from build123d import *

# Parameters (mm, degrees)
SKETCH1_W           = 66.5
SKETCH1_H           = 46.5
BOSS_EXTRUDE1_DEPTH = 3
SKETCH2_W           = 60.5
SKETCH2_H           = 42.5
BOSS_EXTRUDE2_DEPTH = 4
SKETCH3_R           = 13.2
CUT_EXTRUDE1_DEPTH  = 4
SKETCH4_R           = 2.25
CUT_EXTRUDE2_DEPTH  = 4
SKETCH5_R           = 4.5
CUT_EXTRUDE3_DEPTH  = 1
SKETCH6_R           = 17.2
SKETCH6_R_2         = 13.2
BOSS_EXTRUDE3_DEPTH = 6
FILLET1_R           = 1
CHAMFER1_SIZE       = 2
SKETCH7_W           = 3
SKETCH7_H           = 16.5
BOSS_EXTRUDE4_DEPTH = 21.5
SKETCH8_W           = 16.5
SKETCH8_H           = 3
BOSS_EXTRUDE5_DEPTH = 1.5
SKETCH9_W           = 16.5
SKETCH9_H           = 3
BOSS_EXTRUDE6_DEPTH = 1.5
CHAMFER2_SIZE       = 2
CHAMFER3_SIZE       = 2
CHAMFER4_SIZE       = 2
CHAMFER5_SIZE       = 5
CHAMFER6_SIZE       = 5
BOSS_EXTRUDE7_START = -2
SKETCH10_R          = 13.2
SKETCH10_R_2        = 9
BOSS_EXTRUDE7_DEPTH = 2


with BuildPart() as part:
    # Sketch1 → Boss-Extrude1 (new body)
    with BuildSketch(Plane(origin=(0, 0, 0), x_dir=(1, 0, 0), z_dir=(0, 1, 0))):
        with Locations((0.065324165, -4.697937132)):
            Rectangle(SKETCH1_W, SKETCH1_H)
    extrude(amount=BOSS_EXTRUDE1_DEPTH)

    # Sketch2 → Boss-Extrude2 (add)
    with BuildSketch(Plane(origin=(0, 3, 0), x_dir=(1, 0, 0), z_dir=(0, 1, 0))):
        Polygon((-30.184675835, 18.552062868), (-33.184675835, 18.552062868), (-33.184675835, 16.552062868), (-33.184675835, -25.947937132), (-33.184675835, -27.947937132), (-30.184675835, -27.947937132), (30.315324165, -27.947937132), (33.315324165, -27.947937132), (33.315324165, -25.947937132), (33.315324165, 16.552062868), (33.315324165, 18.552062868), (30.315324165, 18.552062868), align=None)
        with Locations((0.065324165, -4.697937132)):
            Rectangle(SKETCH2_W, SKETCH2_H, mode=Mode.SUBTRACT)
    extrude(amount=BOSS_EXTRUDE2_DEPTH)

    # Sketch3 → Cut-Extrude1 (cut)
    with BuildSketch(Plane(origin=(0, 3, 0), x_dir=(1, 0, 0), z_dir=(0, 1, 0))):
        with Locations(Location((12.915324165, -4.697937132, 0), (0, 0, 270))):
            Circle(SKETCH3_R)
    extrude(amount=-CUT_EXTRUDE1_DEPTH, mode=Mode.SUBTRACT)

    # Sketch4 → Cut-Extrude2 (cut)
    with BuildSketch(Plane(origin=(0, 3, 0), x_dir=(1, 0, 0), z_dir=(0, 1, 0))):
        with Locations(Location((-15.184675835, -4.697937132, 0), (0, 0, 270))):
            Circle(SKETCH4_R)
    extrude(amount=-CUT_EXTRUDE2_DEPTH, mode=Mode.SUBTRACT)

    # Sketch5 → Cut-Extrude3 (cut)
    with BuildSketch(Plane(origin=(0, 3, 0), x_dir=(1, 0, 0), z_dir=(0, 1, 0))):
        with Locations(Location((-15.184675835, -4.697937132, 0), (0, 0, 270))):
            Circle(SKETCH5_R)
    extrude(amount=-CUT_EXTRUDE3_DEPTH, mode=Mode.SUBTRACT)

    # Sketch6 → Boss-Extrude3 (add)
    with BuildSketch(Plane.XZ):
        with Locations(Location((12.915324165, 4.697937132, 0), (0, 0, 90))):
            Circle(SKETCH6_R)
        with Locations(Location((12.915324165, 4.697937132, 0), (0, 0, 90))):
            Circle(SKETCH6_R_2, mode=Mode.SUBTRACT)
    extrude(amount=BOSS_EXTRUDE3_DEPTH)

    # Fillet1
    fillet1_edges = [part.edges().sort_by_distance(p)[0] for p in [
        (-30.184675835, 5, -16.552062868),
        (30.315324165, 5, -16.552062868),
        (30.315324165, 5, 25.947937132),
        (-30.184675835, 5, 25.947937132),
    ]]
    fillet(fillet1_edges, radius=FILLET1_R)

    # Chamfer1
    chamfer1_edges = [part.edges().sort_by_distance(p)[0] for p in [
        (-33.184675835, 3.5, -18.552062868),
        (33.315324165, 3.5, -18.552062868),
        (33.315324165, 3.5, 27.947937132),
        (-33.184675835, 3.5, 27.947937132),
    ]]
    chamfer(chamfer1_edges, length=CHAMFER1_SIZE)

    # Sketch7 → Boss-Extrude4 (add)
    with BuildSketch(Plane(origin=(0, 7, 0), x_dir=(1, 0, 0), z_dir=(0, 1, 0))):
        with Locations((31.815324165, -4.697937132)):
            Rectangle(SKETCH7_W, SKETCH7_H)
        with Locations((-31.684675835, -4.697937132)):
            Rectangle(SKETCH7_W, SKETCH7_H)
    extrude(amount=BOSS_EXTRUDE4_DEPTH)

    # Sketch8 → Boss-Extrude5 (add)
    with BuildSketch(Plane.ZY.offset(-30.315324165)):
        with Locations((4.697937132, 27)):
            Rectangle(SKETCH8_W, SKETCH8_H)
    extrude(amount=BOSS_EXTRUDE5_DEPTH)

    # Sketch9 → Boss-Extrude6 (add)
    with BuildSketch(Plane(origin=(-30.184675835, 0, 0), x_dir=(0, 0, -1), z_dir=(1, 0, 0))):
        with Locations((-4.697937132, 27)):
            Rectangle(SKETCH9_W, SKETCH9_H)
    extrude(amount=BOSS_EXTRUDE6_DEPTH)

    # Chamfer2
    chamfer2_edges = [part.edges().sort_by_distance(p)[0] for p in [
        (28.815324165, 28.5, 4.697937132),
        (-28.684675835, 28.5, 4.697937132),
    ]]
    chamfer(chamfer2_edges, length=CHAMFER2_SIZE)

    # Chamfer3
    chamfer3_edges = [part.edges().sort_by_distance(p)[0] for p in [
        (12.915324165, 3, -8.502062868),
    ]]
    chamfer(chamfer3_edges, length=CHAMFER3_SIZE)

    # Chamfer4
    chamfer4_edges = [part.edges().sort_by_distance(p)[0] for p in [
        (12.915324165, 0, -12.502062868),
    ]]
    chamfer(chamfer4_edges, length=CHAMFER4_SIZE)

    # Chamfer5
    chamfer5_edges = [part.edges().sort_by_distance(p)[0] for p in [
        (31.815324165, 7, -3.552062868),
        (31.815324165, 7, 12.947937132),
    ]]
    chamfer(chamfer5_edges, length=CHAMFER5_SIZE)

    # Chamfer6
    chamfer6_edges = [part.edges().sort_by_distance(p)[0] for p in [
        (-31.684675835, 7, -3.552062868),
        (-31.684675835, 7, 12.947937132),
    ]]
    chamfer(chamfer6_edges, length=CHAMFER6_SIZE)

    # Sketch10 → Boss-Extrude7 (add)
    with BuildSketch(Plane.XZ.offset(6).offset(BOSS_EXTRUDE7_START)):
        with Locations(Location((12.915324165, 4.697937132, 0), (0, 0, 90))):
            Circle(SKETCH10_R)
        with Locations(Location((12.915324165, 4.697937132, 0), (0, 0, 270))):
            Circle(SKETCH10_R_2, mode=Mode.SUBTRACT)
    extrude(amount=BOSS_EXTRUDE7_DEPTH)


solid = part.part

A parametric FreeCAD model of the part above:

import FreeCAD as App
import Part
import Sketcher

V = App.Vector
Q = App.Units.Quantity


def edges_at(feature, points):
    """Names of the edges that pass closest to the given points."""
    edges = feature.Shape.Edges
    near = lambda p: min(range(len(edges)), key=lambda i: edges[i].distToShape(Part.Vertex(*p))[0])
    return sorted({f"Edge{near(p) + 1}" for p in points})


def add_polygon(sketch, points):
    """Adds a closed chain of lines whose ends are joined by coincident constraints."""
    first, n = sketch.GeometryCount, len(points)
    for a, b in zip(points, points[1:] + points[:1]):
        sketch.addGeometry(Part.LineSegment(App.Vector(*a, 0), App.Vector(*b, 0)), False)
    for i in range(n):
        sketch.addConstraint(Sketcher.Constraint("Coincident", first + i, 2, first + (i + 1) % n, 1))

doc = App.newDocument("Part")
body = doc.addObject("PartDesign::Body", "Body")

# Sketch on XZ plane
sketch1 = doc.addObject("Sketcher::SketchObject", "Sketch")
body.addObject(sketch1)
sketch1.AttachmentSupport = (doc.XZ_Plane, [""])
sketch1.MapMode = "FlatFace"
add_polygon(sketch1, [(-33, -19), (-33, 28), (33, 28), (33, -19)])  # lines 0-3
sketch1.addConstraint([
    Sketcher.Constraint("Vertical", 0),
    Sketcher.Constraint("Horizontal", 1),
    Sketcher.Constraint("Vertical", 2),
    Sketcher.Constraint("Horizontal", 3),
    Sketcher.Constraint("DistanceX", 1, 1, 1, 2, Q("66.5 mm")),
    Sketcher.Constraint("DistanceY", 0, 1, 0, 2, Q("46.5 mm")),
    Sketcher.Constraint("DistanceX", 0, 2, -1, 1, Q("33.184676 mm")),
    Sketcher.Constraint("DistanceY", -1, 1, 0, 2, Q("27.947937 mm")),
])
pad1 = doc.addObject("PartDesign::Pad", "Pad")
body.addObject(pad1)
pad1.Profile = sketch1
pad1.Length = 3
pad1.Reversed = True

# Sketch on XZ plane
sketch2 = doc.addObject("Sketcher::SketchObject", "Sketch001")
body.addObject(sketch2)
sketch2.AttachmentSupport = (doc.XZ_Plane, [""])
sketch2.MapMode = "FlatFace"
sketch2.AttachmentOffset = App.Placement(V(0, 0, -3), App.Rotation())
add_polygon(sketch2, [(-33, -19), (-33, 28), (33, 28), (33, -19)])  # lines 0-3
add_polygon(sketch2, [(30, 26), (-30, 26), (-30, -17), (30, -17)])  # lines 4-7
sketch2.addConstraint([
    Sketcher.Constraint("Vertical", 0),
    Sketcher.Constraint("Horizontal", 1),
    Sketcher.Constraint("Vertical", 2),
    Sketcher.Constraint("Horizontal", 3),
    Sketcher.Constraint("Horizontal", 4),
    Sketcher.Constraint("Vertical", 5),
    Sketcher.Constraint("Horizontal", 6),
    Sketcher.Constraint("Vertical", 7),
    Sketcher.Constraint("DistanceX", 1, 1, 1, 2, Q("66.5 mm")),
    Sketcher.Constraint("DistanceX", 4, 2, 4, 1, Q("60.5 mm")),
    Sketcher.Constraint("DistanceY", 0, 1, 0, 2, Q("46.5 mm")),
    Sketcher.Constraint("DistanceY", 5, 2, 5, 1, Q("42.5 mm")),
    Sketcher.Constraint("DistanceX", 0, 2, 4, 2, Q("3 mm")),
    Sketcher.Constraint("DistanceY", 4, 2, 0, 2, Q("2 mm")),
    Sketcher.Constraint("DistanceX", 0, 2, -1, 1, Q("33.184676 mm")),
    Sketcher.Constraint("DistanceY", -1, 1, 0, 2, Q("27.947937 mm")),
])
pad2 = doc.addObject("PartDesign::Pad", "Pad001")
body.addObject(pad2)
pad2.Profile = sketch2
pad2.Length = 4
pad2.Reversed = True

# Sketch on XZ plane
sketch3 = doc.addObject("Sketcher::SketchObject", "Sketch002")
body.addObject(sketch3)
sketch3.AttachmentSupport = (doc.XZ_Plane, [""])
sketch3.MapMode = "FlatFace"
sketch3.AttachmentOffset = App.Placement(V(0, 0, -3), App.Rotation())
sketch3.addGeometry(Part.Circle(V(13, 5, 0), V(0, 0, 1), 13), False)
sketch3.addConstraint([
    Sketcher.Constraint("Diameter", 0, Q("26.4 mm")),
    Sketcher.Constraint("DistanceX", -1, 1, 0, 3, Q("12.915324 mm")),
    Sketcher.Constraint("DistanceY", -1, 1, 0, 3, Q("4.697937 mm")),
])
pocket1 = doc.addObject("PartDesign::Pocket", "Pocket")
body.addObject(pocket1)
pocket1.Profile = sketch3
pocket1.Length = 4
pocket1.Reversed = True

# Sketch on XZ plane
sketch4 = doc.addObject("Sketcher::SketchObject", "Sketch003")
body.addObject(sketch4)
sketch4.AttachmentSupport = (doc.XZ_Plane, [""])
sketch4.MapMode = "FlatFace"
sketch4.AttachmentOffset = App.Placement(V(0, 0, -3), App.Rotation())
sketch4.addGeometry(Part.Circle(V(-15.2, 4.7, 0), V(0, 0, 1), 2.2), False)
sketch4.addConstraint([
    Sketcher.Constraint("Diameter", 0, Q("4.5 mm")),
    Sketcher.Constraint("DistanceX", 0, 3, -1, 1, Q("15.184676 mm")),
    Sketcher.Constraint("DistanceY", -1, 1, 0, 3, Q("4.697937 mm")),
])
pocket2 = doc.addObject("PartDesign::Pocket", "Pocket001")
body.addObject(pocket2)
pocket2.Profile = sketch4
pocket2.Length = 4
pocket2.Reversed = True

# Sketch on XZ plane
sketch5 = doc.addObject("Sketcher::SketchObject", "Sketch004")
body.addObject(sketch5)
sketch5.AttachmentSupport = (doc.XZ_Plane, [""])
sketch5.MapMode = "FlatFace"
sketch5.AttachmentOffset = App.Placement(V(0, 0, -3), App.Rotation())
sketch5.addGeometry(Part.Circle(V(-15.2, 4.7, 0), V(0, 0, 1), 4.5), False)
sketch5.addConstraint([
    Sketcher.Constraint("Diameter", 0, Q("9 mm")),
    Sketcher.Constraint("DistanceX", 0, 3, -1, 1, Q("15.184676 mm")),
    Sketcher.Constraint("DistanceY", -1, 1, 0, 3, Q("4.697937 mm")),
])
pocket3 = doc.addObject("PartDesign::Pocket", "Pocket002")
body.addObject(pocket3)
pocket3.Profile = sketch5
pocket3.Length = 1
pocket3.Reversed = True

# Sketch on XZ plane
sketch6 = doc.addObject("Sketcher::SketchObject", "Sketch005")
body.addObject(sketch6)
sketch6.AttachmentSupport = (doc.XZ_Plane, [""])
sketch6.MapMode = "FlatFace"
sketch6.addGeometry([
    Part.Circle(V(13, 5, 0), V(0, 0, 1), 17),
    Part.Circle(V(13, 5, 0), V(0, 0, 1), 13),
], False)
sketch6.addConstraint([
    Sketcher.Constraint("Coincident", 1, 3, 0, 3),
    Sketcher.Constraint("Diameter", 0, Q("34.4 mm")),
    Sketcher.Constraint("Diameter", 1, Q("26.4 mm")),
    Sketcher.Constraint("DistanceX", -1, 1, 0, 3, Q("12.915324 mm")),
    Sketcher.Constraint("DistanceY", -1, 1, 0, 3, Q("4.697937 mm")),
])
pad3 = doc.addObject("PartDesign::Pad", "Pad002")
body.addObject(pad3)
pad3.Profile = sketch6
pad3.Length = 6
doc.recompute()

fillet = doc.addObject("PartDesign::Fillet", "Fillet")
body.addObject(fillet)
fillet.Base = (pad3, edges_at(pad3, [
    (-30.185, 5, -16.552),
    (30.315, 5, -16.552),
    (30.315, 5, 25.948),
    (-30.185, 5, 25.948),
]))
fillet.Radius = 1
doc.recompute()

chamfer = doc.addObject("PartDesign::Chamfer", "Chamfer")
body.addObject(chamfer)
chamfer.Base = (fillet, edges_at(fillet, [
    (-33.185, 3.5, -18.552),
    (33.315, 3.5, -18.552),
    (33.315, 3.5, 27.948),
    (-33.185, 3.5, 27.948),
]))
chamfer.Size = 2

# Sketch on XZ plane
sketch7 = doc.addObject("Sketcher::SketchObject", "Sketch006")
body.addObject(sketch7)
sketch7.AttachmentSupport = (doc.XZ_Plane, [""])
sketch7.MapMode = "FlatFace"
sketch7.AttachmentOffset = App.Placement(V(0, 0, -7), App.Rotation())
add_polygon(sketch7, [(30.3, -3.6), (30.3, 12.9), (33.3, 12.9), (33.3, -3.6)])  # lines 0-3
add_polygon(sketch7, [(-33.2, -3.6), (-33.2, 12.9), (-30.2, 12.9), (-30.2, -3.6)])  # lines 4-7
sketch7.addConstraint([
    Sketcher.Constraint("Vertical", 0),
    Sketcher.Constraint("Horizontal", 1),
    Sketcher.Constraint("Vertical", 2),
    Sketcher.Constraint("Horizontal", 3),
    Sketcher.Constraint("Vertical", 4),
    Sketcher.Constraint("Horizontal", 5),
    Sketcher.Constraint("Vertical", 6),
    Sketcher.Constraint("Horizontal", 7),
    Sketcher.Constraint("Horizontal", 1, 2, 4, 2),
    Sketcher.Constraint("Horizontal", 3, 2, 6, 2),
    Sketcher.Constraint("Equal", 3, 5),
    Sketcher.Constraint("DistanceX", 1, 1, 1, 2, Q("3 mm")),
    Sketcher.Constraint("DistanceY", 0, 1, 0, 2, Q("16.5 mm")),
    Sketcher.Constraint("DistanceX", 4, 2, 0, 2, Q("63.5 mm")),
    Sketcher.Constraint("DistanceX", -1, 1, 0, 2, Q("30.315324 mm")),
    Sketcher.Constraint("DistanceY", -1, 1, 0, 2, Q("12.947937 mm")),
])
pad4 = doc.addObject("PartDesign::Pad", "Pad003")
body.addObject(pad4)
pad4.Profile = sketch7
pad4.Length = 21.5
pad4.Reversed = True

# Sketch on YZ plane
sketch8 = doc.addObject("Sketcher::SketchObject", "Sketch007")
body.addObject(sketch8)
sketch8.AttachmentSupport = (doc.YZ_Plane, [""])
sketch8.MapMode = "FlatFace"
sketch8.AttachmentOffset = App.Placement(V(0, 0, 30.315324), App.Rotation())
add_polygon(sketch8, [(28.5, -3.6), (25.5, -3.6), (25.5, 12.9), (28.5, 12.9)])  # lines 0-3
sketch8.addConstraint([
    Sketcher.Constraint("Horizontal", 0),
    Sketcher.Constraint("Vertical", 1),
    Sketcher.Constraint("Horizontal", 2),
    Sketcher.Constraint("Vertical", 3),
    Sketcher.Constraint("DistanceX", 0, 2, 0, 1, Q("3 mm")),
    Sketcher.Constraint("DistanceY", 1, 1, 1, 2, Q("16.5 mm")),
    Sketcher.Constraint("DistanceX", -1, 1, 0, 2, Q("25.5 mm")),
    Sketcher.Constraint("DistanceY", 0, 2, -1, 1, Q("3.552063 mm")),
])
pad5 = doc.addObject("PartDesign::Pad", "Pad004")
body.addObject(pad5)
pad5.Profile = sketch8
pad5.Length = 1.5
pad5.Reversed = True

# Sketch on YZ plane
sketch9 = doc.addObject("Sketcher::SketchObject", "Sketch008")
body.addObject(sketch9)
sketch9.AttachmentSupport = (doc.YZ_Plane, [""])
sketch9.MapMode = "FlatFace"
sketch9.AttachmentOffset = App.Placement(V(0, 0, -30.184676), App.Rotation())
add_polygon(sketch9, [(28.5, 12.9), (25.5, 12.9), (25.5, -3.6), (28.5, -3.6)])  # lines 0-3
sketch9.addConstraint([
    Sketcher.Constraint("Horizontal", 0),
    Sketcher.Constraint("Vertical", 1),
    Sketcher.Constraint("Horizontal", 2),
    Sketcher.Constraint("Vertical", 3),
    Sketcher.Constraint("DistanceX", 0, 2, 0, 1, Q("3 mm")),
    Sketcher.Constraint("DistanceY", 1, 2, 1, 1, Q("16.5 mm")),
    Sketcher.Constraint("DistanceX", -1, 1, 0, 2, Q("25.5 mm")),
    Sketcher.Constraint("DistanceY", -1, 1, 0, 2, Q("12.947937 mm")),
])
pad6 = doc.addObject("PartDesign::Pad", "Pad005")
body.addObject(pad6)
pad6.Profile = sketch9
pad6.Length = 1.5
doc.recompute()

chamfer2 = doc.addObject("PartDesign::Chamfer", "Chamfer001")
body.addObject(chamfer2)
chamfer2.Base = (pad6, edges_at(pad6, [(28.815, 28.5, 4.698), (-28.685, 28.5, 4.698)]))
chamfer2.Size = 2
doc.recompute()

chamfer3 = doc.addObject("PartDesign::Chamfer", "Chamfer002")
body.addObject(chamfer3)
chamfer3.Base = (chamfer2, edges_at(chamfer2, [(12.915, 3, -8.502)]))
chamfer3.Size = 2
doc.recompute()

chamfer4 = doc.addObject("PartDesign::Chamfer", "Chamfer003")
body.addObject(chamfer4)
chamfer4.Base = (chamfer3, edges_at(chamfer3, [(12.915, 0, -12.502)]))
chamfer4.Size = 2
doc.recompute()

chamfer5 = doc.addObject("PartDesign::Chamfer", "Chamfer004")
body.addObject(chamfer5)
chamfer5.Base = (chamfer4, edges_at(chamfer4, [(31.815, 7, -3.552), (31.815, 7, 12.948)]))
chamfer5.Size = 5
doc.recompute()

chamfer6 = doc.addObject("PartDesign::Chamfer", "Chamfer005")
body.addObject(chamfer6)
chamfer6.Base = (chamfer5, edges_at(chamfer5, [(-31.685, 7, -3.552), (-31.685, 7, 12.948)]))
chamfer6.Size = 5

# Sketch on XZ plane
sketch10 = doc.addObject("Sketcher::SketchObject", "Sketch009")
body.addObject(sketch10)
sketch10.AttachmentSupport = (doc.XZ_Plane, [""])
sketch10.MapMode = "FlatFace"
sketch10.AttachmentOffset = App.Placement(V(0, 0, 4), App.Rotation())
sketch10.addGeometry([
    Part.Circle(V(13, 5, 0), V(0, 0, 1), 13),
    Part.Circle(V(13, 5, 0), V(0, 0, 1), 9),
], False)
sketch10.addConstraint([
    Sketcher.Constraint("Coincident", 1, 3, 0, 3),
    Sketcher.Constraint("Diameter", 1, Q("18 mm")),
    Sketcher.Constraint("Diameter", 0, Q("26.4 mm")),
    Sketcher.Constraint("DistanceX", -1, 1, 0, 3, Q("12.915324 mm")),
    Sketcher.Constraint("DistanceY", -1, 1, 0, 3, Q("4.697937 mm")),
])
pad7 = doc.addObject("PartDesign::Pad", "Pad006")
body.addObject(pad7)
pad7.Profile = sketch10
pad7.Length = 2

doc.recompute()
